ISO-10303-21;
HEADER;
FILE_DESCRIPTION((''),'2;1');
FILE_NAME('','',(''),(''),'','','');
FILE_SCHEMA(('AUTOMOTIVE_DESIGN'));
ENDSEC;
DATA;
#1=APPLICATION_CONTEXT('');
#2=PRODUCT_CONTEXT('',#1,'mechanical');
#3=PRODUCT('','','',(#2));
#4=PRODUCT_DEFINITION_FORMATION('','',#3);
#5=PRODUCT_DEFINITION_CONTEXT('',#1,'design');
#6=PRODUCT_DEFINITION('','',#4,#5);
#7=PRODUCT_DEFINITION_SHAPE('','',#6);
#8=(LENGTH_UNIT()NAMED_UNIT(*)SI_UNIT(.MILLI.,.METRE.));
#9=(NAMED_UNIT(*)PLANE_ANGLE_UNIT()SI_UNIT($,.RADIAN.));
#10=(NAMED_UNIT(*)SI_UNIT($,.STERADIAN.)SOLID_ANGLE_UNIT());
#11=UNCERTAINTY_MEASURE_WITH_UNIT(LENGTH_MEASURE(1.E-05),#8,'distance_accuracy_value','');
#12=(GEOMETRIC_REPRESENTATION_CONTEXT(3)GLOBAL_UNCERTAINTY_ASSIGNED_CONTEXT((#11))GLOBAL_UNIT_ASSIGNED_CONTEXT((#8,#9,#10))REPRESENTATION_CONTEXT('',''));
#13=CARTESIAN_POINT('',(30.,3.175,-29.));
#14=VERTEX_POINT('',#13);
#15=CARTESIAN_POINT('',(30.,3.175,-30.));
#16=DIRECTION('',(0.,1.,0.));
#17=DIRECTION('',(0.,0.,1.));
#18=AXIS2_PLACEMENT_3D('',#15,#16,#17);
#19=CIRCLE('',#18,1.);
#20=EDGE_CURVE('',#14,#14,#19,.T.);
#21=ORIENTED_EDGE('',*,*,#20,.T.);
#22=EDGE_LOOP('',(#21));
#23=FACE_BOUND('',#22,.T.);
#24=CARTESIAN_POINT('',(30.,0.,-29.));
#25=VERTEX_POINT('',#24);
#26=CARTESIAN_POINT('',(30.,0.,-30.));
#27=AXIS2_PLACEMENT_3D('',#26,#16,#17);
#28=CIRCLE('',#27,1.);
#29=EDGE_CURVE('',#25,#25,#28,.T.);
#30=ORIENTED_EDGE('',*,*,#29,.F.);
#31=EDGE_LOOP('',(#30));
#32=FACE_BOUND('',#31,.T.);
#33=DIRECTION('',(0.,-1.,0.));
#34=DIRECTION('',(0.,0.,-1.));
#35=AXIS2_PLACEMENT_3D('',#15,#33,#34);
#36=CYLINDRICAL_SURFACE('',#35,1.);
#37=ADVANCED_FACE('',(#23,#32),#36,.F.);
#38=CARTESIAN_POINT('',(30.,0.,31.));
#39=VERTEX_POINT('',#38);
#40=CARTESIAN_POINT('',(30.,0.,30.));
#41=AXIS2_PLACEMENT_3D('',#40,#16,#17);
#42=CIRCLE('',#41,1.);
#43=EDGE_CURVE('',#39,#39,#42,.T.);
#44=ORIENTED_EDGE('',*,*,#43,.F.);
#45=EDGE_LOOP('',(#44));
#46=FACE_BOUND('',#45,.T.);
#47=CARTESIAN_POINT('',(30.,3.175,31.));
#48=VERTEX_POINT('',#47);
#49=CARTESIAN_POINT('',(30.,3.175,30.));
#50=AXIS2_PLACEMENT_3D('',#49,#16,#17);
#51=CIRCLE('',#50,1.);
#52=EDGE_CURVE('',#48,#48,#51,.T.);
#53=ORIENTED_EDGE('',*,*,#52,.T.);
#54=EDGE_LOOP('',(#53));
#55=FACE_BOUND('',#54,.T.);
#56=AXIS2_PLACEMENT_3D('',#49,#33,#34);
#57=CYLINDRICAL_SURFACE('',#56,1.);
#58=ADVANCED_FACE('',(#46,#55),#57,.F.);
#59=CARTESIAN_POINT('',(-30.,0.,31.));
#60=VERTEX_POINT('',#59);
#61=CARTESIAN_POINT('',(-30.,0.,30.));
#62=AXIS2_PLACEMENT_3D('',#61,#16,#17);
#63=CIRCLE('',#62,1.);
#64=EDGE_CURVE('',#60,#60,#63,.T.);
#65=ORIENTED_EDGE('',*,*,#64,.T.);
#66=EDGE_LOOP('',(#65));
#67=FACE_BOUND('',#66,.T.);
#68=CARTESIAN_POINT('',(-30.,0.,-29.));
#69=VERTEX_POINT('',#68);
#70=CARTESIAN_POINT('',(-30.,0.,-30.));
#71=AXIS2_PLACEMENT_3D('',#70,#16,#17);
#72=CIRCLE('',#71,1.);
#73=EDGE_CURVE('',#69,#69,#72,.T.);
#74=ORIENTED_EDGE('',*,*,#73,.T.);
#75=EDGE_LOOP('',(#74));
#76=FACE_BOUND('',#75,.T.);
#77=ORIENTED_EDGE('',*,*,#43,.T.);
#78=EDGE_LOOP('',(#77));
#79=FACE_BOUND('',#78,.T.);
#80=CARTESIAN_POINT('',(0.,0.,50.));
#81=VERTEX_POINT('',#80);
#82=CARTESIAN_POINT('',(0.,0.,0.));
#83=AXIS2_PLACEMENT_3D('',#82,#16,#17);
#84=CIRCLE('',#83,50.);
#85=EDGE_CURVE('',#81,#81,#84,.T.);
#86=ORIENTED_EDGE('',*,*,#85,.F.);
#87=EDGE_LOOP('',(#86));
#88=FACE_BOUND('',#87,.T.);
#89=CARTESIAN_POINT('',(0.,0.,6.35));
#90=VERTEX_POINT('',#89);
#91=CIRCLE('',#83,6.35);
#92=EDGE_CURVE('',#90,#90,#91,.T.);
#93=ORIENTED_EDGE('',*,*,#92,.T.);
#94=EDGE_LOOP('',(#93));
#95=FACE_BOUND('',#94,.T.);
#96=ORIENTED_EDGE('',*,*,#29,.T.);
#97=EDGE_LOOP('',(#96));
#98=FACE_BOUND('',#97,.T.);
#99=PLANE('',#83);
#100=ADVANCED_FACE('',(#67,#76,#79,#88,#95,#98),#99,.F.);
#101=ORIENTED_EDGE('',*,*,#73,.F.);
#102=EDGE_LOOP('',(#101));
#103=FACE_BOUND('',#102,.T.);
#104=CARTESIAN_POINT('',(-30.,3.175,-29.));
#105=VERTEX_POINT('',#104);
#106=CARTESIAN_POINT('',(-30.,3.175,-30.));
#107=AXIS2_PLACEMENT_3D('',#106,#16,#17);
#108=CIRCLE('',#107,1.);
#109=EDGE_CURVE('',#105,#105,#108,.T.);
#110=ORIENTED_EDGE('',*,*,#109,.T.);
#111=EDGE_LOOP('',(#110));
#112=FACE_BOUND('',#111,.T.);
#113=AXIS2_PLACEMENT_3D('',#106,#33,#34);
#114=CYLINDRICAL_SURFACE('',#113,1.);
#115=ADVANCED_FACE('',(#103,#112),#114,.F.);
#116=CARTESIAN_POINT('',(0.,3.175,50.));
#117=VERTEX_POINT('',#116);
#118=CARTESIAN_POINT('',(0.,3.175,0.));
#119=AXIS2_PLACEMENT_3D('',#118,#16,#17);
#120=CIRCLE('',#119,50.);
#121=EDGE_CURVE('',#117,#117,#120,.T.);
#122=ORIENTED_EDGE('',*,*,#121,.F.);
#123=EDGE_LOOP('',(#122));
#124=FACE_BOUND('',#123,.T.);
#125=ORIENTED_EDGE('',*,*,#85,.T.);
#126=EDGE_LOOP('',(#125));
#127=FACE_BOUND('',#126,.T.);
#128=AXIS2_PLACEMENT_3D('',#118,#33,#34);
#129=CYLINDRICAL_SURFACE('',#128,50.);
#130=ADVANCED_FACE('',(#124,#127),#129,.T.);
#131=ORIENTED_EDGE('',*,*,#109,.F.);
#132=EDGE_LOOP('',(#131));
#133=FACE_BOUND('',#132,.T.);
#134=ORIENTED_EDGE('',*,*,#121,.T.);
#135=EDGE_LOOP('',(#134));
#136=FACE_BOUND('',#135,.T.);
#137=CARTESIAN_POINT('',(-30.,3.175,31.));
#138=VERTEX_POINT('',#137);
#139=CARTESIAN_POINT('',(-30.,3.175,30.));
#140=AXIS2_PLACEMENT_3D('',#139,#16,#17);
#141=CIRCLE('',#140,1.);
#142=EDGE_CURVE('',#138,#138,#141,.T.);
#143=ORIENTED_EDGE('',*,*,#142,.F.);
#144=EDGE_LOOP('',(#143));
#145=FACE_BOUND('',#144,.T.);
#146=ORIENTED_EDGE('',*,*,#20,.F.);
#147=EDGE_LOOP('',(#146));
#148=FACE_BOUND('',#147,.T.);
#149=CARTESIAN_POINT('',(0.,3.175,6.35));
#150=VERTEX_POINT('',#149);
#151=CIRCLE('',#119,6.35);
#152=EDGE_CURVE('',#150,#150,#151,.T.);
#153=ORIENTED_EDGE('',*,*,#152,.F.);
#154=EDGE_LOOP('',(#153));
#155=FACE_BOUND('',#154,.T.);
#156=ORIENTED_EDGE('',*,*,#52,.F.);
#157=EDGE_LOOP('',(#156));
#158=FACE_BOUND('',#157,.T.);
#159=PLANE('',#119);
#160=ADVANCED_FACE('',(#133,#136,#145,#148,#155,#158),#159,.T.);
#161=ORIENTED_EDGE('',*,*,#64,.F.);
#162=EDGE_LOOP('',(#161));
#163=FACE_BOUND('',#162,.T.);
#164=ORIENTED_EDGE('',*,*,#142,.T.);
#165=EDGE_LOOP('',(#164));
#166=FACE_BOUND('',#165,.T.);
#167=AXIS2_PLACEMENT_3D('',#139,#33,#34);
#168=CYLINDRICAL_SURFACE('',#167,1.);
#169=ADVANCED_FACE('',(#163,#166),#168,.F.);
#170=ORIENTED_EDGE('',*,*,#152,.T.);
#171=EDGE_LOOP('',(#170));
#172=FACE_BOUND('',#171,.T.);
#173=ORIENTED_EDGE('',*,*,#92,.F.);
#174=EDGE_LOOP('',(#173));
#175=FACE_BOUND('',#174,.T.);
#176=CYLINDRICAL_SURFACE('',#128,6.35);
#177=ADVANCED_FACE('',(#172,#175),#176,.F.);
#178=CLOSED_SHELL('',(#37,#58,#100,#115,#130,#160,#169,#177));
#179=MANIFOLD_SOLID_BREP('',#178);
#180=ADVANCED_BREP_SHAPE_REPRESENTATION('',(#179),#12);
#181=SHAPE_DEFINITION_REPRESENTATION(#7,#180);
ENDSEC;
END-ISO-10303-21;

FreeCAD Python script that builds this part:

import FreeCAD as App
import Part
import Sketcher
from FreeCAD import Vector
Q = App.Units.Quantity

doc = App.newDocument("Part")
params = doc.addObject("Spreadsheet::Sheet", "Params")
for row, (alias, value) in enumerate([
    ("sketch1_diameter", "100 mm"),
    ("sketch1_diameter2", "2 mm"),
    ("sketch1_diameter3", "12.7 mm"),
    ("pad1_length", "3.175 mm"),
], start=1):
    params.set(f"A{row}", alias)
    params.set(f"B{row}", "=" + value)
    params.setAlias(f"B{row}", alias)

body = doc.addObject("PartDesign::Body", "Body")

# Sketch on XZ plane
sketch1 = body.newObject("Sketcher::SketchObject", "Sketch")
sketch1.AttachmentSupport = (doc.getObject("XZ_Plane"), [""])
sketch1.MapMode = "FlatFace"
sketch1.addGeometry([
    Part.Circle(Vector(0, 0, 0), Vector(0, 0, 1), 50),  # 0
    Part.Circle(Vector(-30, 30, 0), Vector(0, 0, 1), 1),  # 1
    Part.Circle(Vector(30, 30, 0), Vector(0, 0, 1), 1),  # 2
    Part.Circle(Vector(-30, -30, 0), Vector(0, 0, 1), 1),  # 3
    Part.Circle(Vector(0, 0, 0), Vector(0, 0, 1), 6.3),  # 4
    Part.Circle(Vector(30, -30, 0), Vector(0, 0, 1), 1),  # 5
], False)
sketch1.addConstraint([
    Sketcher.Constraint("Coincident", 0, 3, -1, 1),
    Sketcher.Constraint("Coincident", 4, 3, -1, 1),
    Sketcher.Constraint("Equal", 1, 2),
    Sketcher.Constraint("Equal", 2, 3),
    Sketcher.Constraint("Equal", 3, 5),
    Sketcher.Constraint("Symmetric", 2, 3, 3, 3, -1, 1),
    Sketcher.Constraint("Symmetric", 1, 3, 5, 3, -1, 1),
    Sketcher.Constraint("Symmetric", 1, 3, 2, 3, -2),
    Sketcher.Constraint("Diameter", 0, Q("100 mm")),
    Sketcher.Constraint("Diameter", 1, Q("2 mm")),
    Sketcher.Constraint("Diameter", 4, Q("12.7 mm")),
    Sketcher.Constraint("DistanceX", 1, 3, -1, 1, Q("30 mm")),
    Sketcher.Constraint("DistanceY", -1, 1, 1, 3, Q("30 mm")),
])
sketch1.setExpression("Constraints[8]", "Params.sketch1_diameter")
sketch1.setExpression("Constraints[9]", "Params.sketch1_diameter2")
sketch1.setExpression("Constraints[10]", "Params.sketch1_diameter3")
pad1 = body.newObject("PartDesign::Pad", "Pad")
pad1.Profile = sketch1
pad1.setExpression("Length", "Params.pad1_length")
pad1.Reversed = True

doc.recompute()
